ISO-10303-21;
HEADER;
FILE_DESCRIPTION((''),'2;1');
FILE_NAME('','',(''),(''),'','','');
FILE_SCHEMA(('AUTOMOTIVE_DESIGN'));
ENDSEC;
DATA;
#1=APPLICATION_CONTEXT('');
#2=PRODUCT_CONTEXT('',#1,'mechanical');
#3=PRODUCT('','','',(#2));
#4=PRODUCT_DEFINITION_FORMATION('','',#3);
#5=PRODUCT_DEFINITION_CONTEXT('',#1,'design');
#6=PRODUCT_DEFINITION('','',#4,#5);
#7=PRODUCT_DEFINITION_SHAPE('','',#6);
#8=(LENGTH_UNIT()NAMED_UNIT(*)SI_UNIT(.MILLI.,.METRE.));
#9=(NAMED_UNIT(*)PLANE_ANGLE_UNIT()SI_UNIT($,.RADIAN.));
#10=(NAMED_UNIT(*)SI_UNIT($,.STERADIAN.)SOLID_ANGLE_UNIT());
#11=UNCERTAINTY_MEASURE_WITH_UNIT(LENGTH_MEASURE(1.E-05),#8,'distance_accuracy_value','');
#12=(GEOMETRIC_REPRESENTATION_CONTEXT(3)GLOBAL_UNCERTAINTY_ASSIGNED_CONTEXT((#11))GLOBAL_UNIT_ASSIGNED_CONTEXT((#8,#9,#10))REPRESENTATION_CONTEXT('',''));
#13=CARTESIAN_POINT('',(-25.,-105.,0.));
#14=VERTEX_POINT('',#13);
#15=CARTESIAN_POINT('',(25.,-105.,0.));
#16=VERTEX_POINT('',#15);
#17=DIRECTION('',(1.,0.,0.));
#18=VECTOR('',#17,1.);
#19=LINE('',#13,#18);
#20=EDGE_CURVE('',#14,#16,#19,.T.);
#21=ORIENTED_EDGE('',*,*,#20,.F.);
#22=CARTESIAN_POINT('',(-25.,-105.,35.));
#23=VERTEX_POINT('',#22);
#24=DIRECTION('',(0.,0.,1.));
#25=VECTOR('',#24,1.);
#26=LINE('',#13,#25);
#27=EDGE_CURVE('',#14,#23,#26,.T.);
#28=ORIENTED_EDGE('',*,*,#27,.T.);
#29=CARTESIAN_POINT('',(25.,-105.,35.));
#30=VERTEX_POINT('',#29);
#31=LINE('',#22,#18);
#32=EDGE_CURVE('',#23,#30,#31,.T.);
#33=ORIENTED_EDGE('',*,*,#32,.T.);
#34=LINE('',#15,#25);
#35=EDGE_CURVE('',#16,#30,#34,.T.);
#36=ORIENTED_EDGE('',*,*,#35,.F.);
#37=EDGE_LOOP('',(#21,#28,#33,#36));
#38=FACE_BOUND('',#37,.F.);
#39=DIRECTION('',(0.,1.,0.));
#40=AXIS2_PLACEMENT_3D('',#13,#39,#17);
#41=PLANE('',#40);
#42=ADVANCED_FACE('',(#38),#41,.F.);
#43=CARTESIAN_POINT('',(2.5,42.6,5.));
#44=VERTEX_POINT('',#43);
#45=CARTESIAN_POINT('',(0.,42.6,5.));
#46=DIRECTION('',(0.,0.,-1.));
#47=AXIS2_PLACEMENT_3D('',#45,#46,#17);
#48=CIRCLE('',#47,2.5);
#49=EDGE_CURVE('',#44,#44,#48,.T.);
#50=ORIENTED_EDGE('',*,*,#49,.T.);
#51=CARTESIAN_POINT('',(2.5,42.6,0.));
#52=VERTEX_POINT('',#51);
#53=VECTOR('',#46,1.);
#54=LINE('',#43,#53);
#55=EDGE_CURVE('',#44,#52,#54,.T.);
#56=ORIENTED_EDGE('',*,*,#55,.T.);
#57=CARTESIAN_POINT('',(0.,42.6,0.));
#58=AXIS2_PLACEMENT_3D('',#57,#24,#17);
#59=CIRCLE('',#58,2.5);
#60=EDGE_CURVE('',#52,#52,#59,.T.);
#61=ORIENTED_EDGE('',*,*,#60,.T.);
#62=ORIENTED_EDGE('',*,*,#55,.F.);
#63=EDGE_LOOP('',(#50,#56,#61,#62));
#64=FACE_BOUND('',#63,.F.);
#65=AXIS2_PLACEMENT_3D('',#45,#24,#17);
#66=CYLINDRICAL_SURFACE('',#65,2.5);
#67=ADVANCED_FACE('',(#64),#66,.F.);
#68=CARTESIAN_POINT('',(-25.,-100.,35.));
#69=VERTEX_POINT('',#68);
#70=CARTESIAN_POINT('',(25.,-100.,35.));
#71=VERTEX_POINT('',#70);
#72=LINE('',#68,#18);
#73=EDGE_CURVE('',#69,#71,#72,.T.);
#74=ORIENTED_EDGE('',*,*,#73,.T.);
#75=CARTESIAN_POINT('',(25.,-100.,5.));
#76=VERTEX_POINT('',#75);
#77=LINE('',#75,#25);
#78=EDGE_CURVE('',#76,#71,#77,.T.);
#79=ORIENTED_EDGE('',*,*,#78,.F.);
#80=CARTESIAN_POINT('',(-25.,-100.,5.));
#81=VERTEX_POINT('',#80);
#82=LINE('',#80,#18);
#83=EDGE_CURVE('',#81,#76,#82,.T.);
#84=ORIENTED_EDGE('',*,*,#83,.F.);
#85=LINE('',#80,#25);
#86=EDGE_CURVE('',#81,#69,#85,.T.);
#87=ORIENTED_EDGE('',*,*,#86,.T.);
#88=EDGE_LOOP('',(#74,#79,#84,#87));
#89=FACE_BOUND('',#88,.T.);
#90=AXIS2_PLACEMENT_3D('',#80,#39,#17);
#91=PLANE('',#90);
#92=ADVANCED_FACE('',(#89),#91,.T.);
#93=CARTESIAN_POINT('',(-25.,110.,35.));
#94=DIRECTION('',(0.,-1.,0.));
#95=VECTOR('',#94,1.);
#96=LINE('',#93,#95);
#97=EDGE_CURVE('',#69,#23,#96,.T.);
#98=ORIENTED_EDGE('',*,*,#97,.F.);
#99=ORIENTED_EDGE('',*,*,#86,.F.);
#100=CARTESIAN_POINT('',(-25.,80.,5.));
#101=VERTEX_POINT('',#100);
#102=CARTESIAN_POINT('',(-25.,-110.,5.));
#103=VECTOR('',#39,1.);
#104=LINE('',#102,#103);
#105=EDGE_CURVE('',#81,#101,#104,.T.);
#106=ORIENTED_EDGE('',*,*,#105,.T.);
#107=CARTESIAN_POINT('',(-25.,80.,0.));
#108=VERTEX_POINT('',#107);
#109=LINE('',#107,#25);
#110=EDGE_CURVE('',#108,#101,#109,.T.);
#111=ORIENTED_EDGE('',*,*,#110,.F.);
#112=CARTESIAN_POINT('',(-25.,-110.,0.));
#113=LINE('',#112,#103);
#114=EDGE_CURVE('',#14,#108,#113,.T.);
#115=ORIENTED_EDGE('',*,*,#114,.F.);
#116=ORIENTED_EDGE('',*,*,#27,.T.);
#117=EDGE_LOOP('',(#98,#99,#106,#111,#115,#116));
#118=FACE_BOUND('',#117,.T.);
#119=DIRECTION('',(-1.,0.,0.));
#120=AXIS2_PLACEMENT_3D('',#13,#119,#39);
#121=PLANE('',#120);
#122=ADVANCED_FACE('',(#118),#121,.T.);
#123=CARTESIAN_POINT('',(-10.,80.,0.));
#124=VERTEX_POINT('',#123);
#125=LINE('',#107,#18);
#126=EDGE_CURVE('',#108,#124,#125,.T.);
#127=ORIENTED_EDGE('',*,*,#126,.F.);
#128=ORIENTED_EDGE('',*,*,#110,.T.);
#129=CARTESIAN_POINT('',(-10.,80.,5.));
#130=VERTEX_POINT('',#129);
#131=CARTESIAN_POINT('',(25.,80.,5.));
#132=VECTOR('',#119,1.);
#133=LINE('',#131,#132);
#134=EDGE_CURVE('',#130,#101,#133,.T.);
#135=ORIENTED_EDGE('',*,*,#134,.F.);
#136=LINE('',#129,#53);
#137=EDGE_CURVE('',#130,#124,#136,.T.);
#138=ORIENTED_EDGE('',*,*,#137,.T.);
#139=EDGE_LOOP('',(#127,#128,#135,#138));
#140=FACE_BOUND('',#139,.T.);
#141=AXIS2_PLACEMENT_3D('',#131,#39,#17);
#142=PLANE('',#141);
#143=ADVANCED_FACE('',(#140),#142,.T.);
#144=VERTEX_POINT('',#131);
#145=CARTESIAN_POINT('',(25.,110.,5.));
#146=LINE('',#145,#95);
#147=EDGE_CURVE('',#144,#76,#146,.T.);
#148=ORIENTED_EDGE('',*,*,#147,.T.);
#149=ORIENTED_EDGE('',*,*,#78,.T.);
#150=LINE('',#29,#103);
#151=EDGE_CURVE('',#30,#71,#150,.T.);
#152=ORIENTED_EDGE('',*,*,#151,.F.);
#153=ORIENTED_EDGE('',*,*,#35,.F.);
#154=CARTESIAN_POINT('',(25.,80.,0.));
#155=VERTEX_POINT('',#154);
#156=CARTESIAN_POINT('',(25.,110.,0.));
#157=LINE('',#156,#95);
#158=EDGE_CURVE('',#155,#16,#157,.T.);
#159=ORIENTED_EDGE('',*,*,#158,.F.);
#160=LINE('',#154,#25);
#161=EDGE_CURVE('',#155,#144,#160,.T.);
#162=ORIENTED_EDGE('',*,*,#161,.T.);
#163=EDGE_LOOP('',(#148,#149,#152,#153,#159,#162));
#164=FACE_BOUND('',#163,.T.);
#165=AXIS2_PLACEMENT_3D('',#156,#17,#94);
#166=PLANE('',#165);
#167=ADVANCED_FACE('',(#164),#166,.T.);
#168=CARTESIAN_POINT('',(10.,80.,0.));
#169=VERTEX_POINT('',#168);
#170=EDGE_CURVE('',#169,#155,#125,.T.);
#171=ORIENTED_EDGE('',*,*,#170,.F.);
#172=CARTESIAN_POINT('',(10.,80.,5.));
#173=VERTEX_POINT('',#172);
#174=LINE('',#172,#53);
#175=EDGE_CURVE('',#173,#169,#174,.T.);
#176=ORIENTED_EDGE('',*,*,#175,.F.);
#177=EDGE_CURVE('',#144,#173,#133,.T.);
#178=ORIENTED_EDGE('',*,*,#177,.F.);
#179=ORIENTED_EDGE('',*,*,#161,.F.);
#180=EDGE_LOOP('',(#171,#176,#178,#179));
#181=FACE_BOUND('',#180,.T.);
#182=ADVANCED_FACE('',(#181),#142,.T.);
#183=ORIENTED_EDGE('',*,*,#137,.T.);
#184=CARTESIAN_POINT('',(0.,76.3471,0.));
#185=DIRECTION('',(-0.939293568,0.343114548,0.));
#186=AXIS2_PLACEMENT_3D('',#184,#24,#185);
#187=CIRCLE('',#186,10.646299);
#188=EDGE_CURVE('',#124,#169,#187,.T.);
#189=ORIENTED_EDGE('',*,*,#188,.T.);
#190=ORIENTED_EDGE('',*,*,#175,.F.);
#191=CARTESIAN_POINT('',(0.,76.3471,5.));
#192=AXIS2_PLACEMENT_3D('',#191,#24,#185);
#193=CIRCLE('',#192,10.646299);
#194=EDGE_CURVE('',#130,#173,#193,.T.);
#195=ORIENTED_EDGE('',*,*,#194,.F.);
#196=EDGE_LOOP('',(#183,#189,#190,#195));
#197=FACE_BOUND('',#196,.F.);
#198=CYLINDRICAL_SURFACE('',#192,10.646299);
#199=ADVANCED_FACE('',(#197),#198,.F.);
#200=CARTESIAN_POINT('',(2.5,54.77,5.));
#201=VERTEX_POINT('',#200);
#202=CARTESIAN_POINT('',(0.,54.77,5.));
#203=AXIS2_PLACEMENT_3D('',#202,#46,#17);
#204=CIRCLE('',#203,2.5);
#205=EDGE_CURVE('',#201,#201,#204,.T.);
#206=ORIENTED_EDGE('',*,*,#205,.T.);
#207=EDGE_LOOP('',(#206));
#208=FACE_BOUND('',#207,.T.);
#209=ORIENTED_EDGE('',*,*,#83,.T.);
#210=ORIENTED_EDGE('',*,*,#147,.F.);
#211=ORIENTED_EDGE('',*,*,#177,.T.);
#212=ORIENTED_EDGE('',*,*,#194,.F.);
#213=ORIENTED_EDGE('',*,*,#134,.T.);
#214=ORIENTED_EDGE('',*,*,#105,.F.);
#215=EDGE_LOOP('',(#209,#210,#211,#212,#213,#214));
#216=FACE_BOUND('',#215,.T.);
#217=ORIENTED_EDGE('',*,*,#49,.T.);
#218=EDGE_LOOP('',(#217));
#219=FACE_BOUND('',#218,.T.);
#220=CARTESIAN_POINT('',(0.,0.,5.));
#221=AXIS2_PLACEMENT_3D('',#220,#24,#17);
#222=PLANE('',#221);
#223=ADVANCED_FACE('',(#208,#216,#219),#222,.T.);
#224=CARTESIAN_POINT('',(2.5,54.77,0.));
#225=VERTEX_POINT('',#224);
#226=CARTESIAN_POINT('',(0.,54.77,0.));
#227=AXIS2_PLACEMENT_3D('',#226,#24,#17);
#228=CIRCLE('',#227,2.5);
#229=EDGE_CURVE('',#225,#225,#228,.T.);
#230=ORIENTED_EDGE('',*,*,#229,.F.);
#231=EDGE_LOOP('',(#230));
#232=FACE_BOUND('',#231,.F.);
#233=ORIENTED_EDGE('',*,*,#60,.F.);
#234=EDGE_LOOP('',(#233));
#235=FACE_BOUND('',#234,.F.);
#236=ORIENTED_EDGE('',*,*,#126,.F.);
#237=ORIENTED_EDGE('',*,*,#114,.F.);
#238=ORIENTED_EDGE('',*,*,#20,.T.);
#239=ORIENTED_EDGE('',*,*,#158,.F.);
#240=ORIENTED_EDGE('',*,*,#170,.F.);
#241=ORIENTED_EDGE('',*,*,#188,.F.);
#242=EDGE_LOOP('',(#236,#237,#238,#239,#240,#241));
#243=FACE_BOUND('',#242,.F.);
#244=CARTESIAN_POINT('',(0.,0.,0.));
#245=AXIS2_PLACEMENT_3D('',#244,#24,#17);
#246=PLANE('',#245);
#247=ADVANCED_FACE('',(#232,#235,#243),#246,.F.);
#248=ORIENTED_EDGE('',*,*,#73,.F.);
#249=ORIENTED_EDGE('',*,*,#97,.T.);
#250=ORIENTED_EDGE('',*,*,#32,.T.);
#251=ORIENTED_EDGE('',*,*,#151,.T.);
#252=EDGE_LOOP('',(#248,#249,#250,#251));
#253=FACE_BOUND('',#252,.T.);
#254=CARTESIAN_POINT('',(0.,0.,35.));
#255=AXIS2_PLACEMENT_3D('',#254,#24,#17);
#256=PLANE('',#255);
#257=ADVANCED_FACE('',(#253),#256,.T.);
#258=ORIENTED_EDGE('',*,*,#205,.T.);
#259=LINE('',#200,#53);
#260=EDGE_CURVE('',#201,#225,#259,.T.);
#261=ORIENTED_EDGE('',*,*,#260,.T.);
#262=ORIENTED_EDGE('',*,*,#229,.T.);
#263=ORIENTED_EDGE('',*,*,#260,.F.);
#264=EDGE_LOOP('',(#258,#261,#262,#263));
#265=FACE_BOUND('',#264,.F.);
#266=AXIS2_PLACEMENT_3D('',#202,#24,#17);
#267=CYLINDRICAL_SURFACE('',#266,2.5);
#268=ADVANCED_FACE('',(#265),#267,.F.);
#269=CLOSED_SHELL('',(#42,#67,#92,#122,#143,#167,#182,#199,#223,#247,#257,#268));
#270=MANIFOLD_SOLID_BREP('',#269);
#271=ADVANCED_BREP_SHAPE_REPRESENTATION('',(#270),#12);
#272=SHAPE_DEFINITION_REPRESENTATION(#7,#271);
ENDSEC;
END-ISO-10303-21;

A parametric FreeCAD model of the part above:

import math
import FreeCAD as App
import Part
import Sketcher
from FreeCAD import Vector
Q = App.Units.Quantity


def add_polygon(sketch, points):
    """Adds a closed chain of lines whose ends are joined by coincident constraints."""
    first, n = sketch.GeometryCount, len(points)
    for a, b in zip(points, points[1:] + points[:1]):
        sketch.addGeometry(Part.LineSegment(App.Vector(*a, 0), App.Vector(*b, 0)), False)
    for i in range(n):
        sketch.addConstraint(Sketcher.Constraint("Coincident", first + i, 2, first + (i + 1) % n, 1))

doc = App.newDocument("Part")
body = doc.addObject("PartDesign::Body", "Body")

# Sketch on XY plane
sketch1 = body.newObject("Sketcher::SketchObject", "Sketch")
sketch1.AttachmentSupport = (doc.getObject("XY_Plane"), [""])
sketch1.MapMode = "FlatFace"
add_polygon(sketch1, [(-25, 110), (-25, -105), (25, -105), (25, 110)])  # lines 0-3
sketch1.addConstraint(Sketcher.Constraint("Vertical", 0))
sketch1.addConstraint(Sketcher.Constraint("Horizontal", 1))
sketch1.addConstraint(Sketcher.Constraint("Vertical", 2))
sketch1.addConstraint(Sketcher.Constraint("Horizontal", 3))
sketch1.addConstraint(Sketcher.Constraint("DistanceX", 1, 1, 1, 2, Q("50 mm")))
sketch1.addConstraint(Sketcher.Constraint("DistanceY", 0, 2, 0, 1, Q("215 mm")))
sketch1.addConstraint(Sketcher.Constraint("DistanceX", 0, 2, -1, 1, Q("25 mm")))
sketch1.addConstraint(Sketcher.Constraint("DistanceY", 0, 2, -1, 1, Q("105 mm")))
pad1 = body.newObject("PartDesign::Pad", "Pad")
pad1.Profile = sketch1
pad1.Length = 5

# Sketch on XY plane
sketch2 = body.newObject("Sketcher::SketchObject", "Sketch001")
sketch2.AttachmentSupport = (doc.getObject("XY_Plane"), [""])
sketch2.MapMode = "FlatFace"
sketch2.AttachmentOffset = App.Placement(Vector(0, 0, 5), App.Rotation())
add_polygon(sketch2, [(25, -100), (-25, -100), (-25, -105), (25, -105)])  # lines 0-3
sketch2.addConstraint(Sketcher.Constraint("Horizontal", 0))
sketch2.addConstraint(Sketcher.Constraint("Vertical", 1))
sketch2.addConstraint(Sketcher.Constraint("Horizontal", 2))
sketch2.addConstraint(Sketcher.Constraint("Vertical", 3))
sketch2.addConstraint(Sketcher.Constraint("DistanceY", 1, 2, 1, 1, Q("5 mm")))
sketch2.addConstraint(Sketcher.Constraint("DistanceX", 0, 2, 0, 1, Q("50 mm")))
sketch2.addConstraint(Sketcher.Constraint("DistanceX", 0, 2, -1, 1, Q("25 mm")))
sketch2.addConstraint(Sketcher.Constraint("DistanceY", 0, 2, -1, 1, Q("100 mm")))
pad2 = body.newObject("PartDesign::Pad", "Pad001")
pad2.Profile = sketch2
pad2.Length = 30

# Sketch on XY plane
sketch3 = body.newObject("Sketcher::SketchObject", "Sketch002")
sketch3.AttachmentSupport = (doc.getObject("XY_Plane"), [""])
sketch3.MapMode = "FlatFace"
sketch3.AttachmentOffset = App.Placement(Vector(0, 0, 5), App.Rotation())
sketch3.addGeometry(Part.ArcOfCircle(Part.Circle(Vector(0, 110, 0), Vector(0, 0, 1), 5), math.radians(180), math.radians(360)), False)
sketch3.addGeometry(Part.LineSegment(Vector(5, 110, 0), Vector(-5, 110, 0)), False)
sketch3.addConstraint(Sketcher.Constraint("Coincident", 0, 1, 1, 2))
sketch3.addConstraint(Sketcher.Constraint("Coincident", 1, 1, 0, 2))
sketch3.addConstraint(Sketcher.Constraint("Horizontal", 1))
sketch3.addConstraint(Sketcher.Constraint("PointOnObject", 0, 3, -2))
sketch3.addConstraint(Sketcher.Constraint("Radius", 0, Q("5 mm")))
sketch3.addConstraint(Sketcher.Constraint("DistanceY", -1, 1, 0, 3, Q("110 mm")))
sketch3.addConstraint(Sketcher.Constraint("DistanceY", -1, 1, 0, 1, Q("110 mm")))
pocket1 = body.newObject("PartDesign::Pocket", "Pocket")
pocket1.Profile = sketch3
pocket1.Length = 30

# Sketch on XZ plane
sketch4 = body.newObject("Sketcher::SketchObject", "Sketch003")
sketch4.AttachmentSupport = (doc.getObject("XZ_Plane"), [""])
sketch4.MapMode = "FlatFace"
sketch4.AttachmentOffset = App.Placement(Vector(0, 0, -110), App.Rotation())
add_polygon(sketch4, [(25, 0), (-25, 0), (-25, 5), (25, 5)])  # lines 0-3
sketch4.addConstraint(Sketcher.Constraint("Horizontal", 0))
sketch4.addConstraint(Sketcher.Constraint("Vertical", 1))
sketch4.addConstraint(Sketcher.Constraint("Horizontal", 2))
sketch4.addConstraint(Sketcher.Constraint("Vertical", 3))
sketch4.addConstraint(Sketcher.Constraint("Symmetric", 0, 2, 3, 2, -1, 1))
sketch4.addConstraint(Sketcher.Constraint("DistanceX", 0, 2, 0, 1, Q("50 mm")))
sketch4.addConstraint(Sketcher.Constraint("DistanceY", 1, 1, 1, 2, Q("5 mm")))
pocket2 = body.newObject("PartDesign::Pocket", "Pocket001")
pocket2.Profile = sketch4
pocket2.Length = 30
pocket2.Reversed = True

# Sketch on XY plane
sketch5 = body.newObject("Sketcher::SketchObject", "Sketch004")
sketch5.AttachmentSupport = (doc.getObject("XY_Plane"), [""])
sketch5.MapMode = "FlatFace"
sketch5.AttachmentOffset = App.Placement(Vector(0, 0, 5), App.Rotation())
sketch5.addGeometry(Part.LineSegment(Vector(10, 80, 0), Vector(-10, 80, 0)), False)
sketch5.addGeometry(Part.ArcOfCircle(Part.Circle(Vector(0, 80, 0), Vector(0, 0, 1), 10), math.radians(180), math.radians(360)), False)
sketch5.addConstraint(Sketcher.Constraint("Coincident", 0, 1, 1, 2))
sketch5.addConstraint(Sketcher.Constraint("Coincident", 1, 1, 0, 2))
sketch5.addConstraint(Sketcher.Constraint("Horizontal", 0))
sketch5.addConstraint(Sketcher.Constraint("PointOnObject", 1, 3, -2))
sketch5.addConstraint(Sketcher.Constraint("Horizontal", 1, 3, 0, 1))
sketch5.addConstraint(Sketcher.Constraint("Radius", 1, Q("10 mm")))
sketch5.addConstraint(Sketcher.Constraint("DistanceY", -1, 1, 1, 3, Q("80 mm")))
pocket3 = body.newObject("PartDesign::Pocket", "Pocket002")
pocket3.Profile = sketch5
pocket3.Length = 30

# Sketch on XY plane
sketch6 = body.newObject("Sketcher::SketchObject", "Sketch005")
sketch6.AttachmentSupport = (doc.getObject("XY_Plane"), [""])
sketch6.MapMode = "FlatFace"
sketch6.AttachmentOffset = App.Placement(Vector(0, 0, 5), App.Rotation())
sketch6.addGeometry(Part.Circle(Vector(0, 54.8, 0), Vector(0, 0, 1), 2.5), False)
sketch6.addGeometry(Part.Circle(Vector(0, 42.6, 0), Vector(0, 0, 1), 2.5), False)
sketch6.addConstraint(Sketcher.Constraint("Equal", 0, 1))
sketch6.addConstraint(Sketcher.Constraint("PointOnObject", 0, 3, -2))
sketch6.addConstraint(Sketcher.Constraint("PointOnObject", 1, 3, -2))
sketch6.addConstraint(Sketcher.Constraint("Diameter", 0, Q("5 mm")))
sketch6.addConstraint(Sketcher.Constraint("DistanceY", 1, 3, 0, 3, Q("12.17 mm")))
sketch6.addConstraint(Sketcher.Constraint("DistanceY", -1, 1, 1, 3, Q("42.6 mm")))
pocket4 = body.newObject("PartDesign::Pocket", "Pocket003")
pocket4.Profile = sketch6
pocket4.Length = 30

# Sketch on XY plane
sketch7 = body.newObject("Sketcher::SketchObject", "Sketch006")
sketch7.AttachmentSupport = (doc.getObject("XY_Plane"), [""])
sketch7.MapMode = "FlatFace"
sketch7.AttachmentOffset = App.Placement(Vector(0, 0, 5), App.Rotation())
sketch7.addGeometry(Part.ArcOfCircle(Part.Circle(Vector(0, 80, 0), Vector(0, 0, 1), 10), math.radians(180), math.radians(360)), False)
sketch7.addGeometry(Part.ArcOfCircle(Part.Circle(Vector(0, 76, 0), Vector(0, 0, 1), 11), math.radians(160), math.radians(380)), False)
sketch7.addConstraint(Sketcher.Constraint("Coincident", 0, 1, 1, 1))
sketch7.addConstraint(Sketcher.Constraint("Coincident", 1, 2, 0, 2))
sketch7.addConstraint(Sketcher.Constraint("Symmetric", 0, 1, 1, 2, -2))
sketch7.addConstraint(Sketcher.Constraint("Radius", 0, Q("10 mm")))
sketch7.addConstraint(Sketcher.Constraint("DistanceY", -1, 1, 0, 3, Q("80 mm")))
sketch7.addConstraint(Sketcher.Constraint("DistanceY", -1, 1, 0, 1, Q("80 mm")))
sketch7.addConstraint(Sketcher.Constraint("Radius", 1, Q("10.6463 mm")))
pocket5 = body.newObject("PartDesign::Pocket", "Pocket004")
pocket5.Profile = sketch7
pocket5.Length = 30

doc.recompute()
